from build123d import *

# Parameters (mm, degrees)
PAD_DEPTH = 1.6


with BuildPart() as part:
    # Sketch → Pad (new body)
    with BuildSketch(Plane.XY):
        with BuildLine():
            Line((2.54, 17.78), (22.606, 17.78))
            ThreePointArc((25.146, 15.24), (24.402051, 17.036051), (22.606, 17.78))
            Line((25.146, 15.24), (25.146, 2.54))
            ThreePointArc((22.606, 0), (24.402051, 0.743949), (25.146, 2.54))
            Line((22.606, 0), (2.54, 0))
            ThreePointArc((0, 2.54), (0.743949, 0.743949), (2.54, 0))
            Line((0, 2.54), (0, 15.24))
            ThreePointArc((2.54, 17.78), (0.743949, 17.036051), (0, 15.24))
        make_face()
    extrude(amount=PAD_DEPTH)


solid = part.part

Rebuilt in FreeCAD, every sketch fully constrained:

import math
import FreeCAD as App
import Part
import Sketcher
from FreeCAD import Vector
Q = App.Units.Quantity

doc = App.newDocument("Part")
params = doc.addObject("Spreadsheet::Sheet", "Params")
for row, (alias, value) in enumerate([
    ("sketch1_radius", "0.1 in"),
    ("sketch1_height", "0.5 in"),
    ("sketch1_width", "0.79 in"),
    ("pad1_length", "1.6 mm"),
], start=1):
    params.set(f"A{row}", alias)
    params.set(f"B{row}", "=" + value)
    params.setAlias(f"B{row}", alias)

body = doc.addObject("PartDesign::Body", "Body")

# Sketch on XY plane
sketch1 = doc.addObject("Sketcher::SketchObject", "Sketch")
body.addObject(sketch1)
sketch1.AttachmentSupport = (doc.XY_Plane, [""])
sketch1.MapMode = "FlatFace"
sketch1.addGeometry([
    Part.LineSegment(Vector(22.606, 17.78, 0), Vector(2.54, 17.78, 0)),  # 0
    Part.ArcOfCircle(Part.Circle(Vector(2.540001, 15.239999, 0), Vector(0, 0, 1), 2.540001), math.radians(90.000017), math.radians(179.999983)),  # 1
    Part.LineSegment(Vector(0, 15.24, 0), Vector(0, 2.54, 0)),  # 2
    Part.ArcOfCircle(Part.Circle(Vector(2.540001, 2.540001, 0), Vector(0, 0, 1), 2.540001), math.radians(-179.999983), math.radians(-90.000017)),  # 3
    Part.LineSegment(Vector(2.54, 0, 0), Vector(22.606, 0, 0)),  # 4
    Part.ArcOfCircle(Part.Circle(Vector(22.605999, 2.540001, 0), Vector(0, 0, 1), 2.540001), math.radians(-89.999983), math.radians(-0.000017)),  # 5
    Part.LineSegment(Vector(25.146, 2.54, 0), Vector(25.146, 15.24, 0)),  # 6
    Part.ArcOfCircle(Part.Circle(Vector(22.605999, 15.239999, 0), Vector(0, 0, 1), 2.540001), math.radians(0.000017), math.radians(89.999983)),  # 7
], False)
sketch1.addConstraint([
    Sketcher.Constraint("Tangent", 0, 2, 1, 1),
    Sketcher.Constraint("Tangent", 1, 2, 2, 1),
    Sketcher.Constraint("Tangent", 2, 2, 3, 1),
    Sketcher.Constraint("Tangent", 3, 2, 4, 1),
    Sketcher.Constraint("Tangent", 4, 2, 5, 1),
    Sketcher.Constraint("Tangent", 5, 2, 6, 1),
    Sketcher.Constraint("Tangent", 6, 2, 7, 1),
    Sketcher.Constraint("Tangent", 7, 2, 0, 1),
    Sketcher.Constraint("Horizontal", 0),
    Sketcher.Constraint("Vertical", 2),
    Sketcher.Constraint("Horizontal", 4),
    Sketcher.Constraint("Vertical", 6),
    Sketcher.Constraint("Equal", 1, 3),
    Sketcher.Constraint("Equal", 3, 5),
    Sketcher.Constraint("Equal", 5, 7),
    Sketcher.Constraint("PointOnObject", 1, 2, -2),
    Sketcher.Constraint("PointOnObject", 3, 2, -1),
    Sketcher.Constraint("Radius", 1, Q("0.1 in")),
    Sketcher.Constraint("DistanceY", 2, 2, 2, 1, Q("0.5 in")),
    Sketcher.Constraint("DistanceX", 0, 2, 0, 1, Q("0.79 in")),
])
sketch1.setExpression("Constraints[17]", "Params.sketch1_radius")
sketch1.setExpression("Constraints[18]", "Params.sketch1_height")
sketch1.setExpression("Constraints[19]", "Params.sketch1_width")
pad1 = doc.addObject("PartDesign::Pad", "Pad")
body.addObject(pad1)
pad1.Profile = sketch1
pad1.setExpression("Length", "Params.pad1_length")

doc.recompute()
